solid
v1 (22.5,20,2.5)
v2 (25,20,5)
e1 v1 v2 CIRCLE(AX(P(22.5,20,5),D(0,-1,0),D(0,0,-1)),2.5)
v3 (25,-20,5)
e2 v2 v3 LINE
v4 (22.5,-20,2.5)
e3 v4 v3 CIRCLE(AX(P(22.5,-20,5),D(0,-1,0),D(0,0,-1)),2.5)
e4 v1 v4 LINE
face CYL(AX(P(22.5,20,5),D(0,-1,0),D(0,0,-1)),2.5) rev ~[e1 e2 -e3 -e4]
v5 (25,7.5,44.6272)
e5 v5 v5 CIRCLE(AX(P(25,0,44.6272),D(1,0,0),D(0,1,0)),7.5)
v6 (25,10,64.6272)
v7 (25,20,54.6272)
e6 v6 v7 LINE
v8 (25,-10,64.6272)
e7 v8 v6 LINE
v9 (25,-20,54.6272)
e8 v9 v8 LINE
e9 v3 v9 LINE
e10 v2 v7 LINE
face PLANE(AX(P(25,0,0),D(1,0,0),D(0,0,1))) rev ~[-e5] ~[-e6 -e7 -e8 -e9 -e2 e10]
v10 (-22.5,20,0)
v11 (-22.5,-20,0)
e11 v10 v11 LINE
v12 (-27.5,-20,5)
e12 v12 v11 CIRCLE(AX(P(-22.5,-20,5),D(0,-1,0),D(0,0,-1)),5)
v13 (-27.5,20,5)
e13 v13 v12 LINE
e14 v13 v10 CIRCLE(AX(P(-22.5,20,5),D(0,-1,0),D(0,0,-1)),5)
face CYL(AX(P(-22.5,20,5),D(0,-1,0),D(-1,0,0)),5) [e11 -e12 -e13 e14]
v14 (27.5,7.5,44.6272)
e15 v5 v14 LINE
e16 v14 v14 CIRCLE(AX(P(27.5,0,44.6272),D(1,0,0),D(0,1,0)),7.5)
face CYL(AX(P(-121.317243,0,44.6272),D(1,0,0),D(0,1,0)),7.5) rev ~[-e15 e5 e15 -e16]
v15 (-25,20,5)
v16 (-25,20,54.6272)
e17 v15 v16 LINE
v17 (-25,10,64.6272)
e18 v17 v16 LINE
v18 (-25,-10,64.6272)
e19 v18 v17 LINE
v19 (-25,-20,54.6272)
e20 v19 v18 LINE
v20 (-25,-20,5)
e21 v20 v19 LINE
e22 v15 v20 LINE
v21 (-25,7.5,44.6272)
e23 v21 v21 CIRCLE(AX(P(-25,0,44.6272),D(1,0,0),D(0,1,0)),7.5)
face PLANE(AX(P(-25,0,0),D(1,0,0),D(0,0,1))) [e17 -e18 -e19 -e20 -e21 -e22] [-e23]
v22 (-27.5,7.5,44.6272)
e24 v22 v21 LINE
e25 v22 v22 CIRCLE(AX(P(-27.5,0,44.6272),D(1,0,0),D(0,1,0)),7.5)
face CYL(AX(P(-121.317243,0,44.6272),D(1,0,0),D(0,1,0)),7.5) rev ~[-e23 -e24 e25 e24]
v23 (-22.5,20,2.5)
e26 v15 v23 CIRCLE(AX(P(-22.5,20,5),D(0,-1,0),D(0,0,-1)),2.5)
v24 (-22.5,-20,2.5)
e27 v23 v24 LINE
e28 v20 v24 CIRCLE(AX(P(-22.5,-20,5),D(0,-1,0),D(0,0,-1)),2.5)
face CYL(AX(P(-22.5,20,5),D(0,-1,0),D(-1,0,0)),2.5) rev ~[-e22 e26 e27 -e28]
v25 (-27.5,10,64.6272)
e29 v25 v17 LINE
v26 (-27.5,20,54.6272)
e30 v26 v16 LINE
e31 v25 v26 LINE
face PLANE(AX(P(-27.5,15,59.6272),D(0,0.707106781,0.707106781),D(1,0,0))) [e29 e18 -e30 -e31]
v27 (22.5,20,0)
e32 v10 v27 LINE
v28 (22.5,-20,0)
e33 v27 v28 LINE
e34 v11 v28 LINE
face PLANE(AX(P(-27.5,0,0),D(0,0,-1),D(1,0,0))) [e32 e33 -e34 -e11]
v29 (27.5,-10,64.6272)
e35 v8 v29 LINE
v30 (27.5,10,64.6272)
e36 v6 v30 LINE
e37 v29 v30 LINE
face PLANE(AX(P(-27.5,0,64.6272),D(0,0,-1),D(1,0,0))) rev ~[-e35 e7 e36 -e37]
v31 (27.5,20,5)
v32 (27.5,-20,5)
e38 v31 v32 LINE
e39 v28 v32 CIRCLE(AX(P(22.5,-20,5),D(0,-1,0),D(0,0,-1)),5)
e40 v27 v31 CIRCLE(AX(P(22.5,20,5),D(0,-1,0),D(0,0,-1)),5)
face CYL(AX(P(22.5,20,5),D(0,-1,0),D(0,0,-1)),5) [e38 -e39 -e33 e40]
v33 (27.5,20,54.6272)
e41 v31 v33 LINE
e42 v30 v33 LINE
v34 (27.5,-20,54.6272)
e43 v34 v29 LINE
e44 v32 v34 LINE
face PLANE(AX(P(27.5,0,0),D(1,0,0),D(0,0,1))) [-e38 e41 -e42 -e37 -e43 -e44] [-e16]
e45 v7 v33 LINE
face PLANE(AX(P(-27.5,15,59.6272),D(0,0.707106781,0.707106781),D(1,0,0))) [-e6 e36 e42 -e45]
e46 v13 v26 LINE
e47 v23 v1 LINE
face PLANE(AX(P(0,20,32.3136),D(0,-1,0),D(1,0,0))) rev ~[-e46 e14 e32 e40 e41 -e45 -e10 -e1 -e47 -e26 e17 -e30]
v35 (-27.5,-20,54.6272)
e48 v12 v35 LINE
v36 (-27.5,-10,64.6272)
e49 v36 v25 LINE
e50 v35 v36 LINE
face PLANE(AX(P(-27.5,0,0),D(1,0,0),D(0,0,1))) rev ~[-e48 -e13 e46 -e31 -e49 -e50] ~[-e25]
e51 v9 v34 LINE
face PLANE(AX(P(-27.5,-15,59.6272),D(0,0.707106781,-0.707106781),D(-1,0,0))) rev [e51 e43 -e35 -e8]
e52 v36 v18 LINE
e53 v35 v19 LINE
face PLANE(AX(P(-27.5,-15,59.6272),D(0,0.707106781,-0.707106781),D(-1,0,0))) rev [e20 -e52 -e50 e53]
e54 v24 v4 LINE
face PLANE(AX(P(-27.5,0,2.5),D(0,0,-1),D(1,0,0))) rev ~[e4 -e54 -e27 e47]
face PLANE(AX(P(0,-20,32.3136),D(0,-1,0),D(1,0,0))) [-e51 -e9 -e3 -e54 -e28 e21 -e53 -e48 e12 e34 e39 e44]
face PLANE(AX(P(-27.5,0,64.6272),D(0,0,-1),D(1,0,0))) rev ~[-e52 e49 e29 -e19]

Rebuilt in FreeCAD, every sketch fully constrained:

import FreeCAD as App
import Part
import Sketcher
Q = App.Units.Quantity


def edges_at(feature, points):
    """Names of the edges that pass closest to the given points."""
    edges = feature.Shape.Edges
    near = lambda p: min(range(len(edges)), key=lambda i: edges[i].distToShape(Part.Vertex(*p))[0])
    return sorted({f"Edge{near(p) + 1}" for p in points})


def faces_at(feature, points):
    """Names of the faces that lie closest to the given points."""
    faces = feature.Shape.Faces
    near = lambda p: min(range(len(faces)), key=lambda i: faces[i].distToShape(Part.Vertex(*p))[0])
    return sorted({f"Face{near(p) + 1}" for p in points})

doc = App.newDocument("Part")
body = doc.addObject("PartDesign::Body", "Body")

# Sketch on XZ plane
sketch1 = doc.addObject("Sketcher::SketchObject", "Sketch")
body.addObject(sketch1)
sketch1.AttachmentSupport = (doc.XZ_Plane, [""])
sketch1.MapMode = "FlatFace"
sketch1.addGeometry(Part.LineSegment(App.Vector(-28, 65, 0), App.Vector(-28, 0, 0)), False)
sketch1.addGeometry(Part.LineSegment(App.Vector(-28, 0, 0), App.Vector(28, 0, 0)), False)
sketch1.addGeometry(Part.LineSegment(App.Vector(28, 0, 0), App.Vector(28, 65, 0)), False)
sketch1.addGeometry(Part.LineSegment(App.Vector(28, 65, 0), App.Vector(-28, 65, 0)), False)
sketch1.addConstraint(Sketcher.Constraint("Coincident", 0, 2, 1, 1))
sketch1.addConstraint(Sketcher.Constraint("Coincident", 1, 2, 2, 1))
sketch1.addConstraint(Sketcher.Constraint("Coincident", 2, 2, 3, 1))
sketch1.addConstraint(Sketcher.Constraint("Coincident", 3, 2, 0, 1))
sketch1.addConstraint(Sketcher.Constraint("Vertical", 0))
sketch1.addConstraint(Sketcher.Constraint("Horizontal", 1))
sketch1.addConstraint(Sketcher.Constraint("Vertical", 2))
sketch1.addConstraint(Sketcher.Constraint("Horizontal", 3))
sketch1.addConstraint(Sketcher.Constraint("Symmetric", 0, 2, 1, 2, -1, 1))
sketch1.addConstraint(Sketcher.Constraint("DistanceX", 1, 1, 1, 2, Q("55 mm")))
sketch1.addConstraint(Sketcher.Constraint("DistanceY", 0, 2, 0, 1, Q("64.6272 mm")))
pad1 = doc.addObject("PartDesign::Pad", "Pad")
body.addObject(pad1)
pad1.Profile = sketch1
pad1.Type = "TwoLengths"
pad1.Length = 20
pad1.Length2 = 20
doc.recompute()

chamfer = doc.addObject("PartDesign::Chamfer", "Chamfer")
body.addObject(chamfer)
chamfer.Base = (pad1, edges_at(pad1, [(0, -20, 64.627), (0, 20, 64.627)]))
chamfer.Size = 10
doc.recompute()

fillet = doc.addObject("PartDesign::Fillet", "Fillet")
body.addObject(fillet)
fillet.Base = (chamfer, edges_at(chamfer, [(-27.5, 0, 0), (27.5, 0, 0)]))
fillet.Radius = 5
doc.recompute()

thickness = doc.addObject("PartDesign::Thickness", "Thickness")
body.addObject(thickness)
thickness.Base = (fillet, faces_at(fillet, [
    (0, -20, 27.314),
    (0, -15, 59.627),
    (0, 0, 64.627),
    (0, 15, 59.627),
    (0, 20, 27.314),
]))
thickness.Value = 2.5
thickness.Reversed = True
thickness.Join = "Arc"

# Sketch on YZ plane
sketch2 = doc.addObject("Sketcher::SketchObject", "Sketch001")
body.addObject(sketch2)
sketch2.AttachmentSupport = (doc.YZ_Plane, [""])
sketch2.MapMode = "FlatFace"
sketch2.AttachmentOffset = App.Placement(App.Vector(0, 0, -27.5), App.Rotation())
sketch2.addGeometry(Part.Circle(App.Vector(0, 45, 0), App.Vector(0, 0, 1), 8), False)
sketch2.addConstraint(Sketcher.Constraint("PointOnObject", 0, 3, -2))
sketch2.addConstraint(Sketcher.Constraint("Diameter", 0, Q("15 mm")))
sketch2.addConstraint(Sketcher.Constraint("DistanceY", -1, 1, 0, 3, Q("44.6272 mm")))
doc.recompute()
hole = doc.addObject("PartDesign::Hole", "Hole")
body.addObject(hole)
hole.Profile = sketch2
hole.ThreadType = "None"
hole.Diameter = 15
hole.DepthType = "ThroughAll"
hole.Reversed = True

doc.recompute()
